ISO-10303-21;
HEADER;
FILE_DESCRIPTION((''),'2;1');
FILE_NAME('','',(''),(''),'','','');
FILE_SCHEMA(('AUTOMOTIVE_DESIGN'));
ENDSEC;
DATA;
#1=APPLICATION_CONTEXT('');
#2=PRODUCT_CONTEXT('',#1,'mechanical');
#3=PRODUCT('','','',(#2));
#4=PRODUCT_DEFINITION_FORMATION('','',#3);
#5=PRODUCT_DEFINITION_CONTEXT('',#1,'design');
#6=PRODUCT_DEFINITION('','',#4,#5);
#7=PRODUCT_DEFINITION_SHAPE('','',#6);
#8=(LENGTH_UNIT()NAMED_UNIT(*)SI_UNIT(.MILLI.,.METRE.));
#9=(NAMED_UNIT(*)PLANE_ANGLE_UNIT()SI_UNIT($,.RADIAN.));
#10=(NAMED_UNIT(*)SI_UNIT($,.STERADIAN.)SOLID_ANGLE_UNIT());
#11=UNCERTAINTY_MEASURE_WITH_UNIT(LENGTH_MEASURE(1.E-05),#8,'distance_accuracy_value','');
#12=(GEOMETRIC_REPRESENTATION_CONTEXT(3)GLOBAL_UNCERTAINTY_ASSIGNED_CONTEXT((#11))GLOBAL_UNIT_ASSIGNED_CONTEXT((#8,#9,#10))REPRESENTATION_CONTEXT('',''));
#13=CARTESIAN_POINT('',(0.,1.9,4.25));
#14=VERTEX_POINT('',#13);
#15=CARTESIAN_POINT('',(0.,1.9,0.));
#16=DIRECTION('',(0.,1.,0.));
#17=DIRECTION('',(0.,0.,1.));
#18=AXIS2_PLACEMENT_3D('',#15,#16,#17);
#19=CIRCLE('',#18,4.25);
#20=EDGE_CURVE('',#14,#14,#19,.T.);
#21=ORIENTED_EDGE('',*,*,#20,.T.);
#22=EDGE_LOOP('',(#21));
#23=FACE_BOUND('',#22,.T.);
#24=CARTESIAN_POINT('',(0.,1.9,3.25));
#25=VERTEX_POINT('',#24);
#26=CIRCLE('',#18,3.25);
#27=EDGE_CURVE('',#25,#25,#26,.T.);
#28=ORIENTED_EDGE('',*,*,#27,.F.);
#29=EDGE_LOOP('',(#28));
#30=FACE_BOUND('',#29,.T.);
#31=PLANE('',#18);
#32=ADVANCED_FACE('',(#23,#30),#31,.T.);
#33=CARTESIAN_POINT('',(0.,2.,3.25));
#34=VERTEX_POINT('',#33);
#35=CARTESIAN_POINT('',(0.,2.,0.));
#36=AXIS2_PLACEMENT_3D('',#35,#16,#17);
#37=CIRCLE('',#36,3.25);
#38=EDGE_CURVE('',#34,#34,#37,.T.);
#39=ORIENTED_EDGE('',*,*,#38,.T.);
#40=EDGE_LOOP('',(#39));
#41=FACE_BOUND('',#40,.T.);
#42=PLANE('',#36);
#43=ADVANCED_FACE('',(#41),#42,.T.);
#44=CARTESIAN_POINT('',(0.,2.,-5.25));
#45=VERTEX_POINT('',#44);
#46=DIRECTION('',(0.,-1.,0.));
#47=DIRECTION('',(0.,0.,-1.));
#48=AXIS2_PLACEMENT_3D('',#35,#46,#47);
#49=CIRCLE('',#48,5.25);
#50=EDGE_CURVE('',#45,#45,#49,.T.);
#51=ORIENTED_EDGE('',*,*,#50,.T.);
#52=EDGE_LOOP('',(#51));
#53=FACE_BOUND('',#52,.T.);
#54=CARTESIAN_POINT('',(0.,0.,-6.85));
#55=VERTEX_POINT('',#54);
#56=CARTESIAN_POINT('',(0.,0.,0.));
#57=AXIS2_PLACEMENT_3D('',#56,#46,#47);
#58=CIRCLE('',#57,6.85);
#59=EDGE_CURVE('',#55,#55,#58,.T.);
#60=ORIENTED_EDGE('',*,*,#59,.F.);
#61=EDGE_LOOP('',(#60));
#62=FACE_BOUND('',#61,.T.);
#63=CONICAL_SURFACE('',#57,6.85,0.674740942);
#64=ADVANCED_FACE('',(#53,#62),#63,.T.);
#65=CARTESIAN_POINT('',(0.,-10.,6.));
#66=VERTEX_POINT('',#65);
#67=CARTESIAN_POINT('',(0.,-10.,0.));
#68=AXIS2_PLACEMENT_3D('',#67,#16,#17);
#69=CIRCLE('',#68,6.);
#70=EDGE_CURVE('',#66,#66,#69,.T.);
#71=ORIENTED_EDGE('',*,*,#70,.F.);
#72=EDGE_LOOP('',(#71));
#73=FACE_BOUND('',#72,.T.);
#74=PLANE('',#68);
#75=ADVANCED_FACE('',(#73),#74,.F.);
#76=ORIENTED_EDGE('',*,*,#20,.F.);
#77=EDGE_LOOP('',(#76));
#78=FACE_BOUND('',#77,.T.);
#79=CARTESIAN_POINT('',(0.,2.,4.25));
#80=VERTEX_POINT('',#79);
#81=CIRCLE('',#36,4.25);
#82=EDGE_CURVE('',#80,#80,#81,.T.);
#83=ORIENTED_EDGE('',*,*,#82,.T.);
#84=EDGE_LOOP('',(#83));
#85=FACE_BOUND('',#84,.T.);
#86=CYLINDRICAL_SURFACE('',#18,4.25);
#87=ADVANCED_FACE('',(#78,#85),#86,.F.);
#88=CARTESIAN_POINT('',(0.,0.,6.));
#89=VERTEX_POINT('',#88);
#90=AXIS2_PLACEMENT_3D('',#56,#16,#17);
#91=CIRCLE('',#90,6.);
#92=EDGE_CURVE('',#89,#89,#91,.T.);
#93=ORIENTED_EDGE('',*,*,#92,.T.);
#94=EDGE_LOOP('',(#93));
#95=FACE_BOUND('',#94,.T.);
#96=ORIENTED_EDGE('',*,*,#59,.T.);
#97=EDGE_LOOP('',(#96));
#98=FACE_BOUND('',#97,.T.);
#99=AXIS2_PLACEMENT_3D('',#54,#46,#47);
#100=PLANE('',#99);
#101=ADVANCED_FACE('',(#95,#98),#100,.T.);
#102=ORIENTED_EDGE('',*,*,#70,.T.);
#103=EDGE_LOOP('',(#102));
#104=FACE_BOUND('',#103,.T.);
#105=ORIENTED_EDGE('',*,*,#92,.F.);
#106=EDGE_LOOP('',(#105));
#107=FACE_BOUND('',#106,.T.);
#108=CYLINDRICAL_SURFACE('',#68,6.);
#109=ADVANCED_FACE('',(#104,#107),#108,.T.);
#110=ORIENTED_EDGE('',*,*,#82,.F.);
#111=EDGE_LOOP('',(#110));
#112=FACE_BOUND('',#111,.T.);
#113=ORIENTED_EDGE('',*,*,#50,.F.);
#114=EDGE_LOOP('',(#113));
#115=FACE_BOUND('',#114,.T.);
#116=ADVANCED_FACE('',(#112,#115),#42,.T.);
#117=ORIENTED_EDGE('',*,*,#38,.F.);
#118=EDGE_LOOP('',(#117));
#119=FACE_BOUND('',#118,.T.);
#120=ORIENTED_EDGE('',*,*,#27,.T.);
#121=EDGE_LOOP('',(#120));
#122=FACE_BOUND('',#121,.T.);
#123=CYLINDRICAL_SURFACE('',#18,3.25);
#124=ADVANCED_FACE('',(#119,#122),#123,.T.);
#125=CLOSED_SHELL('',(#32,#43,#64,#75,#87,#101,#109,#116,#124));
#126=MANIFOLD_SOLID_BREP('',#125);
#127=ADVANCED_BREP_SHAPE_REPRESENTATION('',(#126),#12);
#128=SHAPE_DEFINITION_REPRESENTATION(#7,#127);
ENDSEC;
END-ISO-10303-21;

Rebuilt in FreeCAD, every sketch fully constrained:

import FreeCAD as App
import Part
import Sketcher
Q = App.Units.Quantity

doc = App.newDocument("Part")
params = doc.addObject("Spreadsheet::Sheet", "Params")
for row, (alias, value) in enumerate([
    ("sketch1_diameter", "12 mm"),
    ("pad1_length", "10 mm"),
    ("sketch2_width", "2 mm"),
    ("sketch2_height", "6.85 mm"),
    ("sketch2_height2", "5.25 mm"),
    ("revolution_angle", "360 deg"),
    ("sketch3_diameter", "8.5 mm"),
    ("sketch3_diameter2", "6.5 mm"),
    ("pocket1_length", "0.1 mm"),
], start=1):
    params.set(f"A{row}", alias)
    params.set(f"B{row}", "=" + value)
    params.setAlias(f"B{row}", alias)

body = doc.addObject("PartDesign::Body", "Body")

# Sketch on XZ plane
sketch1 = doc.addObject("Sketcher::SketchObject", "Sketch")
body.addObject(sketch1)
sketch1.AttachmentSupport = (doc.XZ_Plane, [""])
sketch1.MapMode = "FlatFace"
sketch1.addGeometry(Part.Circle(App.Vector(0, 0, 0), App.Vector(0, 0, 1), 6), False)
sketch1.addConstraint([
    Sketcher.Constraint("Coincident", 0, 3, -1, 1),
    Sketcher.Constraint("Diameter", 0, Q("12 mm")),
])
sketch1.setExpression("Constraints[1]", "Params.sketch1_diameter")
pad1 = doc.addObject("PartDesign::Pad", "Pad")
body.addObject(pad1)
pad1.Profile = sketch1
pad1.setExpression("Length", "Params.pad1_length")

# Sketch on YZ plane
sketch2 = doc.addObject("Sketcher::SketchObject", "Sketch001")
body.addObject(sketch2)
sketch2.AttachmentSupport = (doc.YZ_Plane, [""])
sketch2.MapMode = "FlatFace"
sketch2.addGeometry([
    Part.LineSegment(App.Vector(2, 0, 0), App.Vector(0, 0, 0)),
    Part.LineSegment(App.Vector(0, 0, 0), App.Vector(0, -6.85, 0)),
    Part.LineSegment(App.Vector(0, -6.85, 0), App.Vector(2, -5.25, 0)),
    Part.LineSegment(App.Vector(2, -5.25, 0), App.Vector(2, 0, 0)),
], False)
sketch2.addConstraint([
    Sketcher.Constraint("Coincident", 0, 2, 1, 1),
    Sketcher.Constraint("Coincident", 1, 2, 2, 1),
    Sketcher.Constraint("Coincident", 2, 2, 3, 1),
    Sketcher.Constraint("Coincident", 3, 2, 0, 1),
    Sketcher.Constraint("Horizontal", 0),
    Sketcher.Constraint("Vertical", 1),
    Sketcher.Constraint("Vertical", 3),
    Sketcher.Constraint("Coincident", 0, 2, -1, 1),
    Sketcher.Constraint("DistanceX", 0, 2, 0, 1, Q("2 mm")),
    Sketcher.Constraint("DistanceY", 1, 2, 1, 1, Q("6.85 mm")),
    Sketcher.Constraint("DistanceY", 3, 1, 3, 2, Q("5.25 mm")),
])
sketch2.setExpression("Constraints[8]", "Params.sketch2_width")
sketch2.setExpression("Constraints[9]", "Params.sketch2_height")
sketch2.setExpression("Constraints[10]", "Params.sketch2_height2")
revolution = doc.addObject("PartDesign::Revolution", "Revolution")
body.addObject(revolution)
revolution.Profile = sketch2
revolution.ReferenceAxis = (sketch2, ["H_Axis"])
revolution.setExpression("Angle", "Params.revolution_angle")

# Sketch on XZ plane
sketch3 = doc.addObject("Sketcher::SketchObject", "Sketch002")
body.addObject(sketch3)
sketch3.AttachmentSupport = (doc.XZ_Plane, [""])
sketch3.MapMode = "FlatFace"
sketch3.AttachmentOffset = App.Placement(App.Vector(0, 0, -2), App.Rotation())
sketch3.addGeometry([
    Part.Circle(App.Vector(0, 0, 0), App.Vector(0, 0, 1), 4.25),
    Part.Circle(App.Vector(0, 0, 0), App.Vector(0, 0, 1), 3.25),
], False)
sketch3.addConstraint([
    Sketcher.Constraint("Coincident", 0, 3, -1, 1),
    Sketcher.Constraint("Coincident", 1, 3, -1, 1),
    Sketcher.Constraint("Diameter", 0, Q("8.5 mm")),
    Sketcher.Constraint("Diameter", 1, Q("6.5 mm")),
])
sketch3.setExpression("Constraints[2]", "Params.sketch3_diameter")
sketch3.setExpression("Constraints[3]", "Params.sketch3_diameter2")
pocket1 = doc.addObject("PartDesign::Pocket", "Pocket")
body.addObject(pocket1)
pocket1.Profile = sketch3
pocket1.setExpression("Length", "Params.pocket1_length")
pocket1.Reversed = True

doc.recompute()
